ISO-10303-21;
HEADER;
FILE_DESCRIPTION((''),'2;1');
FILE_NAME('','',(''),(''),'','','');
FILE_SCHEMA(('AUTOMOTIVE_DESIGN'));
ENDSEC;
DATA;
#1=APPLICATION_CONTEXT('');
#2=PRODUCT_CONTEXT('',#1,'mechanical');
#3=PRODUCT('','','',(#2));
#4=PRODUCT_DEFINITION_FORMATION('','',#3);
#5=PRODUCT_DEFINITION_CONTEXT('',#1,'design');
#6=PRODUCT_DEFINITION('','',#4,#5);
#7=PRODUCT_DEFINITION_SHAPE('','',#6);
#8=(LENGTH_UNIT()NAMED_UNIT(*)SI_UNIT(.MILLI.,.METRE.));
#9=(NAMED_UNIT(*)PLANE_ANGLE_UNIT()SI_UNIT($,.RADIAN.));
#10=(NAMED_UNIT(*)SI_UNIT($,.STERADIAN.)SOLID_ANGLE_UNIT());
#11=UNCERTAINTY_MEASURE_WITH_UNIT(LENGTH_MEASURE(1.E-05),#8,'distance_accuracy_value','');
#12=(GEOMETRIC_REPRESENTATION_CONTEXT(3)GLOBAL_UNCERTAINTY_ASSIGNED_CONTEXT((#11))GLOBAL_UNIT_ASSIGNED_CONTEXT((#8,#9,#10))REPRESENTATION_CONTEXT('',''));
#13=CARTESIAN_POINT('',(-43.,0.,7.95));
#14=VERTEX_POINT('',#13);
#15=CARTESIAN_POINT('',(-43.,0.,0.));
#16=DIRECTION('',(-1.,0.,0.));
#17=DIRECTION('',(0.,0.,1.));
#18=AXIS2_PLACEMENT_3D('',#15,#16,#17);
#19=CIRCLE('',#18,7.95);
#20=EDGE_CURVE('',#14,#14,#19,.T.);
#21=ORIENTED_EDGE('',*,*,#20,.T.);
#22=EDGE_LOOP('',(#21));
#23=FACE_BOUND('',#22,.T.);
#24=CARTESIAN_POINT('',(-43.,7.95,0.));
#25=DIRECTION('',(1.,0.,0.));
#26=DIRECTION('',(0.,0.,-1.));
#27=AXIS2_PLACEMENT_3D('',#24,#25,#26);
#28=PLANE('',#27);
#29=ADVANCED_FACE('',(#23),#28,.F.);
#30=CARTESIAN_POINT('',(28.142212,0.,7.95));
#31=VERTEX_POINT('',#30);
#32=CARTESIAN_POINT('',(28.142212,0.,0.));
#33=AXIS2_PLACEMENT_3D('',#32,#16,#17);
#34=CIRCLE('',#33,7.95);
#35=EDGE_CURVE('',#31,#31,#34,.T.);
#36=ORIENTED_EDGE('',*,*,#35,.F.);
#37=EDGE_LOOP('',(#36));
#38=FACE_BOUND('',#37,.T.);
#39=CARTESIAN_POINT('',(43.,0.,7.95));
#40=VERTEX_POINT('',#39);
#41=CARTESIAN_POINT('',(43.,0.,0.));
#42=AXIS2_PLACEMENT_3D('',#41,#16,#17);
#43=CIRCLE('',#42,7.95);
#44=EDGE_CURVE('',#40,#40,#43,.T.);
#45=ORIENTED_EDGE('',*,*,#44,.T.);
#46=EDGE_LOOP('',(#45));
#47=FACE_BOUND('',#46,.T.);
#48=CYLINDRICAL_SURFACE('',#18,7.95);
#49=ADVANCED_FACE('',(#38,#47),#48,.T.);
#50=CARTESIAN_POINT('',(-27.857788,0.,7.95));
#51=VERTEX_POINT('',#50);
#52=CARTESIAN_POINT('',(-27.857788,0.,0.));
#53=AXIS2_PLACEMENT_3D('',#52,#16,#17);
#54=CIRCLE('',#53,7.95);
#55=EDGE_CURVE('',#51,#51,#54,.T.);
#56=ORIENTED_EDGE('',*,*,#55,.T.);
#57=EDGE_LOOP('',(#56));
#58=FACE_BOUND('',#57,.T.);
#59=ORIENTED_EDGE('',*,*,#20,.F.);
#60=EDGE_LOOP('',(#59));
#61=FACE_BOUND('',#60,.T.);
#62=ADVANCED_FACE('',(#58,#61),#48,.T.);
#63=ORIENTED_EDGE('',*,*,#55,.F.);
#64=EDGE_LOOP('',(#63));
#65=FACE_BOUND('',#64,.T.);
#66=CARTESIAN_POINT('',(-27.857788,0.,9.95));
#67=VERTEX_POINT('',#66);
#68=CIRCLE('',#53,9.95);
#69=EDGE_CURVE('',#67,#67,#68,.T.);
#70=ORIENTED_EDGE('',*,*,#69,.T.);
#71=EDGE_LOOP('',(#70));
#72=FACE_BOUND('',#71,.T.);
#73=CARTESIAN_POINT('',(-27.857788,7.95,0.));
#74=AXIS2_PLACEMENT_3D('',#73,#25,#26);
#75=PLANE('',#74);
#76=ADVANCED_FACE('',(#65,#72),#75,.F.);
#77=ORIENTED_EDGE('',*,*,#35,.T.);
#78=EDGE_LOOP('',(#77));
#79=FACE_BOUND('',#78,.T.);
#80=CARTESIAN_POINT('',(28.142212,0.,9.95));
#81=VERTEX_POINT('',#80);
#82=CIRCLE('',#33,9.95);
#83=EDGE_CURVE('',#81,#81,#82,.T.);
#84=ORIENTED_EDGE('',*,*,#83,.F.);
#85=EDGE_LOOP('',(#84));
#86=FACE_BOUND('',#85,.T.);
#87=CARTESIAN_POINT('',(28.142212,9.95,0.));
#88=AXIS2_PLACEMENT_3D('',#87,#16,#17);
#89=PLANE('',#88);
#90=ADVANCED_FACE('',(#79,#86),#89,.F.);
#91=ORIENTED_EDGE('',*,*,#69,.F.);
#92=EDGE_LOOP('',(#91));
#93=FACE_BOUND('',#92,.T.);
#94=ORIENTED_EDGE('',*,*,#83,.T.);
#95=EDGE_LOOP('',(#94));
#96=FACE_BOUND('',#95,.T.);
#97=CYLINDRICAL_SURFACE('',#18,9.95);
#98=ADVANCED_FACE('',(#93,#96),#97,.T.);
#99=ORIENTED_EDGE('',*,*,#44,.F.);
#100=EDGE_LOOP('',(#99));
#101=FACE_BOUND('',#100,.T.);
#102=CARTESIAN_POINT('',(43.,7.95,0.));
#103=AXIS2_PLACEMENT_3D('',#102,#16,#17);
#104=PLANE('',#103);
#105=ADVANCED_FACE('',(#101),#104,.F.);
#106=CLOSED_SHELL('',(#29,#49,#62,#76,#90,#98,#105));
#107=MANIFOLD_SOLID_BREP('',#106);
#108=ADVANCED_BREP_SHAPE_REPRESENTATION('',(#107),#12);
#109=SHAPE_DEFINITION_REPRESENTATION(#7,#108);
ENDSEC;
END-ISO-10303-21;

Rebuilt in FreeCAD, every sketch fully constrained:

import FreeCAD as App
import Part
import Sketcher
from FreeCAD import Vector


def add_polygon(sketch, points):
    """Adds a closed chain of lines whose ends are joined by coincident constraints."""
    first, n = sketch.GeometryCount, len(points)
    for a, b in zip(points, points[1:] + points[:1]):
        sketch.addGeometry(Part.LineSegment(App.Vector(*a, 0), App.Vector(*b, 0)), False)
    for i in range(n):
        sketch.addConstraint(Sketcher.Constraint("Coincident", first + i, 2, first + (i + 1) % n, 1))

doc = App.newDocument("Part")
body = doc.addObject("PartDesign::Body", "Body")

# Sketch on XY plane
sketch1 = body.newObject("Sketcher::SketchObject", "Sketch")
sketch1.AttachmentSupport = (doc.getObject("XY_Plane"), [""])
sketch1.MapMode = "FlatFace"
add_polygon(sketch1, [(-27.9, 8), (-43, 8), (-43, 0), (43, 0), (43, 8), (28.1, 8), (28.1, 9.9), (-27.9, 9.9)])  # lines 0-7
sketch1.addConstraint(Sketcher.Constraint("Horizontal", 0))
sketch1.addConstraint(Sketcher.Constraint("Vertical", 1))
sketch1.addConstraint(Sketcher.Constraint("Horizontal", 2))
sketch1.addConstraint(Sketcher.Constraint("Vertical", 3))
sketch1.addConstraint(Sketcher.Constraint("Horizontal", 4))
sketch1.addConstraint(Sketcher.Constraint("Vertical", 5))
sketch1.addConstraint(Sketcher.Constraint("Horizontal", 6))
sketch1.addConstraint(Sketcher.Constraint("Vertical", 7))
sketch1.addConstraint(Sketcher.Constraint("Symmetric", 1, 2, 2, 2, -1, 1))
sketch1.addConstraint(Sketcher.Constraint("Horizontal", 0, 2, 3, 2))
sketch1.addConstraint(Sketcher.Constraint("DistanceX", 2, 1, 2, 2, 86.0))
sketch1.addConstraint(Sketcher.Constraint("DistanceX", 6, 2, 6, 1, 56.0))
sketch1.addConstraint(Sketcher.Constraint("DistanceY", 5, 1, 5, 2, 2.0))
sketch1.addConstraint(Sketcher.Constraint("DistanceY", 1, 2, 1, 1, 7.95))
sketch1.addConstraint(Sketcher.Constraint("DistanceX", 0, 2, 0, 1, 15.142212))
revolution = body.newObject("PartDesign::Revolution", "Revolution")
revolution.Profile = sketch1
revolution.ReferenceAxis = (sketch1, ["H_Axis"])
revolution.Angle = 360

doc.recompute()
